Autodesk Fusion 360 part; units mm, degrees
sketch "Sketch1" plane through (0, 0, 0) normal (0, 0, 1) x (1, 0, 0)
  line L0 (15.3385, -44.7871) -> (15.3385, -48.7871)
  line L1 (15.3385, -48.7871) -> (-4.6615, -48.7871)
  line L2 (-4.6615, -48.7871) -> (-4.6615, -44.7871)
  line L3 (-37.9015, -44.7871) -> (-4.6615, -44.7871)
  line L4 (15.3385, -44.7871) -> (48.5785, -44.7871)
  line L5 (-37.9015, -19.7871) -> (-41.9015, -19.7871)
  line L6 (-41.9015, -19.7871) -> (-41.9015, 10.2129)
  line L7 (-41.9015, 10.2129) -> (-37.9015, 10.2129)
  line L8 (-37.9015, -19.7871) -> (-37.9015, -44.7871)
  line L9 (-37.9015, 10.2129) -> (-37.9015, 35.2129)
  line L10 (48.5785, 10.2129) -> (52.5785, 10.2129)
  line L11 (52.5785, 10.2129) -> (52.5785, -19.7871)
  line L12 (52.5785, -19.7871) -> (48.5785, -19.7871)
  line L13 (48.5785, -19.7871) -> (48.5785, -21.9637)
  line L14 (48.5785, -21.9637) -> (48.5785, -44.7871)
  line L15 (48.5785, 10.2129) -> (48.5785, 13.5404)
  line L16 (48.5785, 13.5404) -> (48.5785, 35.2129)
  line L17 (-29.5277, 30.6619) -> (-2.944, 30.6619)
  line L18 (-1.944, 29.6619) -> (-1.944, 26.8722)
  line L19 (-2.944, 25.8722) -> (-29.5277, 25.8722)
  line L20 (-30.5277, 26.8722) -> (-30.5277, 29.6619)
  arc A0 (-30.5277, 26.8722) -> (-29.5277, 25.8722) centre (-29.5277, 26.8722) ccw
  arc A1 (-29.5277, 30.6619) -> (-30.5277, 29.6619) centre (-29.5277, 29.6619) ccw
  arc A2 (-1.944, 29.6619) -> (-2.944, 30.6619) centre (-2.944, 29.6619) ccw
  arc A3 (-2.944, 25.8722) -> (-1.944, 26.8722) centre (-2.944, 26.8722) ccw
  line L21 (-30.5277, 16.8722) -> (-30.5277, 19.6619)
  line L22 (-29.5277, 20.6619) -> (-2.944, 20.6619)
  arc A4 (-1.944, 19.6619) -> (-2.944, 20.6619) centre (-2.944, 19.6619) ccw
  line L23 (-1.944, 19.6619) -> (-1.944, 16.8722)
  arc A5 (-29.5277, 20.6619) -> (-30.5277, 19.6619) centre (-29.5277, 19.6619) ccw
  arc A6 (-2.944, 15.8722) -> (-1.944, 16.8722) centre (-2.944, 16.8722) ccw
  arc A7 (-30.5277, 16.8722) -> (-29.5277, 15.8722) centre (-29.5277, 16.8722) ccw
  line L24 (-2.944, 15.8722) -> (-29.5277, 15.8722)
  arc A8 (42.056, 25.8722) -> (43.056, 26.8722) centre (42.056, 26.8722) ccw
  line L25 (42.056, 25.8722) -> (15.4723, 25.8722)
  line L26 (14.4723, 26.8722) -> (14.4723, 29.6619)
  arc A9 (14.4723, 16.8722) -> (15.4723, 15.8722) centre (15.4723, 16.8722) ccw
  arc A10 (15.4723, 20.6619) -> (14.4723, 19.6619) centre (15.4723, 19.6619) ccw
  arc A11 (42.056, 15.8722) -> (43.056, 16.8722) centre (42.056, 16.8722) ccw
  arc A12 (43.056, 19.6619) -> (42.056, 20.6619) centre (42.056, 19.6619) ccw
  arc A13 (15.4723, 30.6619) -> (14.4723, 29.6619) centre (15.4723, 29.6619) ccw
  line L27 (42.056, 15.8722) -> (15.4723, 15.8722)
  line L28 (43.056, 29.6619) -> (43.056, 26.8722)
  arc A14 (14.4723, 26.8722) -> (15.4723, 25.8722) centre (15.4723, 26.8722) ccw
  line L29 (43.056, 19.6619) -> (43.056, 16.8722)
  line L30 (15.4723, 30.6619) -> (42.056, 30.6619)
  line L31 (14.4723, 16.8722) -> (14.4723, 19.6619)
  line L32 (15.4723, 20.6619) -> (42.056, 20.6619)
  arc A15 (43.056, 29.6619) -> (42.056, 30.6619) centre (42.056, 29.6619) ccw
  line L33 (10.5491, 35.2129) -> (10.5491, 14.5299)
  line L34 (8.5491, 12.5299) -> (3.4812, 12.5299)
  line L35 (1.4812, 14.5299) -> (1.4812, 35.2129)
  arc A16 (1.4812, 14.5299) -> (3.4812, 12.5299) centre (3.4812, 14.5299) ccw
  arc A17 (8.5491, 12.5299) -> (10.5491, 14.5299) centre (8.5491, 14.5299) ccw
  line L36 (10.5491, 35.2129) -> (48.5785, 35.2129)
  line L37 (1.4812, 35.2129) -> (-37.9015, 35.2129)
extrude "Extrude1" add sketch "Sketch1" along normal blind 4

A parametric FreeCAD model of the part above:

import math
import FreeCAD as App
import Part
import Sketcher

doc = App.newDocument("Part")
body = doc.addObject("PartDesign::Body", "Body")

# Sketch on XY plane
sketch1 = body.newObject("Sketcher::SketchObject", "Sketch")
sketch1.AttachmentSupport = (doc.getObject("XY_Plane"), [""])
sketch1.MapMode = "FlatFace"
sketch1.addGeometry([
    Part.LineSegment(App.Vector(15.3, -48.8, 0), App.Vector(15.3, -44.8, 0)),  # 0
    Part.LineSegment(App.Vector(15.3, -44.8, 0), App.Vector(48.6, -44.8, 0)),  # 1
    Part.LineSegment(App.Vector(48.6, -44.8, 0), App.Vector(48.6, -19.8, 0)),  # 2
    Part.LineSegment(App.Vector(48.6, -19.8, 0), App.Vector(52.6, -19.8, 0)),  # 3
    Part.LineSegment(App.Vector(52.6, -19.8, 0), App.Vector(52.6, 10.2, 0)),  # 4
    Part.LineSegment(App.Vector(52.6, 10.2, 0), App.Vector(48.6, 10.2, 0)),  # 5
    Part.LineSegment(App.Vector(48.6, 10.2, 0), App.Vector(48.6, 35.2, 0)),  # 6
    Part.LineSegment(App.Vector(48.6, 35.2, 0), App.Vector(10.5, 35.2, 0)),  # 7
    Part.LineSegment(App.Vector(10.5, 35.2, 0), App.Vector(10.5, 14.5, 0)),  # 8
    Part.ArcOfCircle(Part.Circle(App.Vector(8.5, 14.5, 0), App.Vector(0, 0, 1), 2), math.radians(-90), math.radians(0)),  # 9
    Part.LineSegment(App.Vector(8.5, 12.5, 0), App.Vector(3.5, 12.5, 0)),  # 10
    Part.ArcOfCircle(Part.Circle(App.Vector(3.5, 14.5, 0), App.Vector(0, 0, 1), 2), math.radians(180), math.radians(270)),  # 11
    Part.LineSegment(App.Vector(1.5, 14.5, 0), App.Vector(1.5, 35.2, 0)),  # 12
    Part.LineSegment(App.Vector(1.5, 35.2, 0), App.Vector(-37.9, 35.2, 0)),  # 13
    Part.LineSegment(App.Vector(-37.9, 35.2, 0), App.Vector(-37.9, 10.2, 0)),  # 14
    Part.LineSegment(App.Vector(-37.9, 10.2, 0), App.Vector(-41.9, 10.2, 0)),  # 15
    Part.LineSegment(App.Vector(-41.9, 10.2, 0), App.Vector(-41.9, -19.8, 0)),  # 16
    Part.LineSegment(App.Vector(-41.9, -19.8, 0), App.Vector(-37.9, -19.8, 0)),  # 17
    Part.LineSegment(App.Vector(-37.9, -19.8, 0), App.Vector(-37.9, -44.8, 0)),  # 18
    Part.LineSegment(App.Vector(-37.9, -44.8, 0), App.Vector(-4.7, -44.8, 0)),  # 19
    Part.LineSegment(App.Vector(-4.7, -44.8, 0), App.Vector(-4.7, -48.8, 0)),  # 20
    Part.LineSegment(App.Vector(-4.7, -48.8, 0), App.Vector(15.3, -48.8, 0)),  # 21
    Part.ArcOfCircle(Part.Circle(App.Vector(-29.5, 16.9, 0), App.Vector(0, 0, 1), 1), math.radians(180), math.radians(270)),  # 22
    Part.LineSegment(App.Vector(-30.5, 16.9, 0), App.Vector(-30.5, 19.7, 0)),  # 23
    Part.ArcOfCircle(Part.Circle(App.Vector(-29.5, 19.7, 0), App.Vector(0, 0, 1), 1), math.radians(90), math.radians(180)),  # 24
    Part.LineSegment(App.Vector(-29.5, 20.7, 0), App.Vector(-2.9, 20.7, 0)),  # 25
    Part.ArcOfCircle(Part.Circle(App.Vector(-2.9, 19.7, 0), App.Vector(0, 0, 1), 1), math.radians(0), math.radians(90)),  # 26
    Part.LineSegment(App.Vector(-1.9, 19.7, 0), App.Vector(-1.9, 16.9, 0)),  # 27
    Part.ArcOfCircle(Part.Circle(App.Vector(-2.9, 16.9, 0), App.Vector(0, 0, 1), 1), math.radians(-90), math.radians(0)),  # 28
    Part.LineSegment(App.Vector(-2.9, 15.9, 0), App.Vector(-29.5, 15.9, 0)),  # 29
    Part.ArcOfCircle(Part.Circle(App.Vector(-29.5, 29.7, 0), App.Vector(0, 0, 1), 1), math.radians(90), math.radians(180)),  # 30
    Part.LineSegment(App.Vector(-29.5, 30.7, 0), App.Vector(-2.9, 30.7, 0)),  # 31
    Part.ArcOfCircle(Part.Circle(App.Vector(-2.9, 29.7, 0), App.Vector(0, 0, 1), 1), math.radians(0), math.radians(90)),  # 32
    Part.LineSegment(App.Vector(-1.9, 29.7, 0), App.Vector(-1.9, 26.9, 0)),  # 33
    Part.ArcOfCircle(Part.Circle(App.Vector(-2.9, 26.9, 0), App.Vector(0, 0, 1), 1), math.radians(-90), math.radians(0)),  # 34
    Part.LineSegment(App.Vector(-2.9, 25.9, 0), App.Vector(-29.5, 25.9, 0)),  # 35
    Part.ArcOfCircle(Part.Circle(App.Vector(-29.5, 26.9, 0), App.Vector(0, 0, 1), 1), math.radians(180), math.radians(270)),  # 36
    Part.LineSegment(App.Vector(-30.5, 26.9, 0), App.Vector(-30.5, 29.7, 0)),  # 37
    Part.ArcOfCircle(Part.Circle(App.Vector(15.5, 16.9, 0), App.Vector(0, 0, 1), 1), math.radians(180), math.radians(270)),  # 38
    Part.LineSegment(App.Vector(14.5, 16.9, 0), App.Vector(14.5, 19.7, 0)),  # 39
    Part.ArcOfCircle(Part.Circle(App.Vector(15.5, 19.7, 0), App.Vector(0, 0, 1), 1), math.radians(90), math.radians(180)),  # 40
    Part.LineSegment(App.Vector(15.5, 20.7, 0), App.Vector(42.1, 20.7, 0)),  # 41
    Part.ArcOfCircle(Part.Circle(App.Vector(42.1, 19.7, 0), App.Vector(0, 0, 1), 1), math.radians(0), math.radians(90)),  # 42
    Part.LineSegment(App.Vector(43.1, 19.7, 0), App.Vector(43.1, 16.9, 0)),  # 43
    Part.ArcOfCircle(Part.Circle(App.Vector(42.1, 16.9, 0), App.Vector(0, 0, 1), 1), math.radians(-90), math.radians(0)),  # 44
    Part.LineSegment(App.Vector(42.1, 15.9, 0), App.Vector(15.5, 15.9, 0)),  # 45
    Part.ArcOfCircle(Part.Circle(App.Vector(42.1, 26.9, 0), App.Vector(0, 0, 1), 1), math.radians(-90), math.radians(0)),  # 46
    Part.LineSegment(App.Vector(42.1, 25.9, 0), App.Vector(15.5, 25.9, 0)),  # 47
    Part.ArcOfCircle(Part.Circle(App.Vector(15.5, 26.9, 0), App.Vector(0, 0, 1), 1), math.radians(180), math.radians(270)),  # 48
    Part.LineSegment(App.Vector(14.5, 26.9, 0), App.Vector(14.5, 29.7, 0)),  # 49
    Part.ArcOfCircle(Part.Circle(App.Vector(15.5, 29.7, 0), App.Vector(0, 0, 1), 1), math.radians(90), math.radians(180)),  # 50
    Part.LineSegment(App.Vector(15.5, 30.7, 0), App.Vector(42.1, 30.7, 0)),  # 51
    Part.ArcOfCircle(Part.Circle(App.Vector(42.1, 29.7, 0), App.Vector(0, 0, 1), 1), math.radians(0), math.radians(90)),  # 52
    Part.LineSegment(App.Vector(43.1, 29.7, 0), App.Vector(43.1, 26.9, 0)),  # 53
], False)
sketch1.addConstraint([
    Sketcher.Constraint("Coincident", 0, 2, 1, 1),
    Sketcher.Constraint("Coincident", 1, 2, 2, 1),
    Sketcher.Constraint("Coincident", 2, 2, 3, 1),
    Sketcher.Constraint("Coincident", 3, 2, 4, 1),
    Sketcher.Constraint("Coincident", 4, 2, 5, 1),
    Sketcher.Constraint("Coincident", 5, 2, 6, 1),
    Sketcher.Constraint("Coincident", 6, 2, 7, 1),
    Sketcher.Constraint("Coincident", 7, 2, 8, 1),
    Sketcher.Constraint("Tangent", 8, 2, 9, 2),
    Sketcher.Constraint("Tangent", 9, 1, 10, 1),
    Sketcher.Constraint("Tangent", 10, 2, 11, 2),
    Sketcher.Constraint("Tangent", 11, 1, 12, 1),
    Sketcher.Constraint("Coincident", 12, 2, 13, 1),
    Sketcher.Constraint("Coincident", 13, 2, 14, 1),
    Sketcher.Constraint("Coincident", 14, 2, 15, 1),
    Sketcher.Constraint("Coincident", 15, 2, 16, 1),
    Sketcher.Constraint("Coincident", 16, 2, 17, 1),
    Sketcher.Constraint("Coincident", 17, 2, 18, 1),
    Sketcher.Constraint("Coincident", 18, 2, 19, 1),
    Sketcher.Constraint("Coincident", 19, 2, 20, 1),
    Sketcher.Constraint("Coincident", 20, 2, 21, 1),
    Sketcher.Constraint("Coincident", 21, 2, 0, 1),
    Sketcher.Constraint("Tangent", 22, 1, 23, 1),
    Sketcher.Constraint("Tangent", 23, 2, 24, 2),
    Sketcher.Constraint("Tangent", 24, 1, 25, 1),
    Sketcher.Constraint("Tangent", 25, 2, 26, 2),
    Sketcher.Constraint("Tangent", 26, 1, 27, 1),
    Sketcher.Constraint("Tangent", 27, 2, 28, 2),
    Sketcher.Constraint("Tangent", 28, 1, 29, 1),
    Sketcher.Constraint("Tangent", 29, 2, 22, 2),
    Sketcher.Constraint("Tangent", 30, 1, 31, 1),
    Sketcher.Constraint("Tangent", 31, 2, 32, 2),
    Sketcher.Constraint("Tangent", 32, 1, 33, 1),
    Sketcher.Constraint("Tangent", 33, 2, 34, 2),
    Sketcher.Constraint("Tangent", 34, 1, 35, 1),
    Sketcher.Constraint("Tangent", 35, 2, 36, 2),
    Sketcher.Constraint("Tangent", 36, 1, 37, 1),
    Sketcher.Constraint("Tangent", 37, 2, 30, 2),
    Sketcher.Constraint("Tangent", 38, 1, 39, 1),
    Sketcher.Constraint("Tangent", 39, 2, 40, 2),
    Sketcher.Constraint("Tangent", 40, 1, 41, 1),
    Sketcher.Constraint("Tangent", 41, 2, 42, 2),
    Sketcher.Constraint("Tangent", 42, 1, 43, 1),
    Sketcher.Constraint("Tangent", 43, 2, 44, 2),
    Sketcher.Constraint("Tangent", 44, 1, 45, 1),
    Sketcher.Constraint("Tangent", 45, 2, 38, 2),
    Sketcher.Constraint("Tangent", 46, 1, 47, 1),
    Sketcher.Constraint("Tangent", 47, 2, 48, 2),
    Sketcher.Constraint("Tangent", 48, 1, 49, 1),
    Sketcher.Constraint("Tangent", 49, 2, 50, 2),
    Sketcher.Constraint("Tangent", 50, 1, 51, 1),
    Sketcher.Constraint("Tangent", 51, 2, 52, 2),
    Sketcher.Constraint("Tangent", 52, 1, 53, 1),
    Sketcher.Constraint("Tangent", 53, 2, 46, 2),
    Sketcher.Constraint("Vertical", 0),
    Sketcher.Constraint("Horizontal", 1),
    Sketcher.Constraint("Vertical", 2),
    Sketcher.Constraint("Horizontal", 3),
    Sketcher.Constraint("Vertical", 4),
    Sketcher.Constraint("Horizontal", 5),
    Sketcher.Constraint("Vertical", 6),
    Sketcher.Constraint("Horizontal", 7),
    Sketcher.Constraint("Vertical", 8),
    Sketcher.Constraint("Horizontal", 10),
    Sketcher.Constraint("Vertical", 12),
    Sketcher.Constraint("Horizontal", 13),
    Sketcher.Constraint("Vertical", 14),
    Sketcher.Constraint("Horizontal", 15),
    Sketcher.Constraint("Vertical", 16),
    Sketcher.Constraint("Horizontal", 17),
    Sketcher.Constraint("Vertical", 18),
    Sketcher.Constraint("Horizontal", 19),
    Sketcher.Constraint("Vertical", 20),
    Sketcher.Constraint("Horizontal", 21),
    Sketcher.Constraint("Vertical", 23),
    Sketcher.Constraint("Horizontal", 25),
    Sketcher.Constraint("Vertical", 27),
    Sketcher.Constraint("Horizontal", 29),
    Sketcher.Constraint("Horizontal", 31),
    Sketcher.Constraint("Vertical", 33),
    Sketcher.Constraint("Horizontal", 35),
    Sketcher.Constraint("Vertical", 37),
    Sketcher.Constraint("Vertical", 39),
    Sketcher.Constraint("Horizontal", 41),
    Sketcher.Constraint("Vertical", 43),
    Sketcher.Constraint("Horizontal", 45),
    Sketcher.Constraint("Horizontal", 47),
    Sketcher.Constraint("Vertical", 49),
    Sketcher.Constraint("Horizontal", 51),
    Sketcher.Constraint("Vertical", 53),
    Sketcher.Constraint("Equal", 9, 11),
    Sketcher.Constraint("Equal", 22, 24),
    Sketcher.Constraint("Equal", 24, 26),
    Sketcher.Constraint("Equal", 26, 28),
    Sketcher.Constraint("Equal", 28, 30),
    Sketcher.Constraint("Equal", 30, 32),
    Sketcher.Constraint("Equal", 32, 34),
    Sketcher.Constraint("Equal", 34, 36),
    Sketcher.Constraint("Equal", 36, 38),
    Sketcher.Constraint("Equal", 38, 40),
    Sketcher.Constraint("Equal", 40, 42),
    Sketcher.Constraint("Equal", 42, 44),
    Sketcher.Constraint("Equal", 44, 46),
    Sketcher.Constraint("Equal", 46, 48),
    Sketcher.Constraint("Equal", 48, 50),
    Sketcher.Constraint("Equal", 50, 52),
    Sketcher.Constraint("Horizontal", 28, 3, 38, 3),
    Sketcher.Constraint("Horizontal", 26, 3, 40, 3),
    Sketcher.Constraint("Horizontal", 36, 3, 46, 3),
    Sketcher.Constraint("Horizontal", 32, 3, 50, 3),
    Sketcher.Constraint("Horizontal", 7, 2, 12, 2),
    Sketcher.Constraint("Horizontal", 5, 2, 14, 2),
    Sketcher.Constraint("Horizontal", 3, 2, 16, 2),
    Sketcher.Constraint("Horizontal", 1, 2, 18, 2),
    Sketcher.Constraint("Vertical", 24, 3, 30, 3),
    Sketcher.Constraint("Vertical", 28, 3, 32, 3),
    Sketcher.Constraint("Vertical", 44, 3, 46, 3),
    Sketcher.Constraint("Vertical", 40, 3, 48, 3),
    Sketcher.Constraint("Vertical", 2, 2, 5, 2),
    Sketcher.Constraint("Vertical", 14, 2, 17, 2),
    Sketcher.Constraint("Equal", 5, 15),
    Sketcher.Constraint("Equal", 1, 19),
    Sketcher.Constraint("Equal", 35, 41),
    Sketcher.Constraint("Equal", 17, 0),
    Sketcher.Constraint("Equal", 2, 6),
    Sketcher.Constraint("Equal", 27, 33),
    Sketcher.Constraint("Radius", 9, 2.0),
    Sketcher.Constraint("Radius", 22, 1.0),
    Sketcher.Constraint("DistanceX", 3, 1, 3, 2, 4.0),
    Sketcher.Constraint("DistanceX", 21, 1, 21, 2, 20.0),
    Sketcher.Constraint("DistanceY", 2, 1, 2, 2, 25.0),
    Sketcher.Constraint("DistanceY", 4, 1, 4, 2, 30.0),
    Sketcher.Constraint("DistanceX", 1, 1, 1, 2, 33.24),
    Sketcher.Constraint("DistanceX", 10, 2, 10, 1, 5.068),
    Sketcher.Constraint("DistanceY", 8, 2, 8, 1, 20.683),
    Sketcher.Constraint("DistanceY", -1, 1, 9, 3, 14.53),
    Sketcher.Constraint("DistanceX", 7, 2, 7, 1, 38.0294),
    Sketcher.Constraint("DistanceX", 25, 1, 25, 2, 26.5837),
    Sketcher.Constraint("DistanceY", 23, 1, 23, 2, 2.7897),
    Sketcher.Constraint("DistanceX", -1, 1, 9, 3, 8.549),
    Sketcher.Constraint("DistanceY", -1, 1, 24, 3, 19.662),
    Sketcher.Constraint("DistanceX", 26, 3, -1, 1, 2.944),
    Sketcher.Constraint("DistanceY", -1, 1, 30, 3, 29.662),
    Sketcher.Constraint("DistanceX", -1, 1, 42, 3, 42.056),
])
pad1 = body.newObject("PartDesign::Pad", "Pad")
pad1.Profile = sketch1
pad1.Length = 4

doc.recompute()
